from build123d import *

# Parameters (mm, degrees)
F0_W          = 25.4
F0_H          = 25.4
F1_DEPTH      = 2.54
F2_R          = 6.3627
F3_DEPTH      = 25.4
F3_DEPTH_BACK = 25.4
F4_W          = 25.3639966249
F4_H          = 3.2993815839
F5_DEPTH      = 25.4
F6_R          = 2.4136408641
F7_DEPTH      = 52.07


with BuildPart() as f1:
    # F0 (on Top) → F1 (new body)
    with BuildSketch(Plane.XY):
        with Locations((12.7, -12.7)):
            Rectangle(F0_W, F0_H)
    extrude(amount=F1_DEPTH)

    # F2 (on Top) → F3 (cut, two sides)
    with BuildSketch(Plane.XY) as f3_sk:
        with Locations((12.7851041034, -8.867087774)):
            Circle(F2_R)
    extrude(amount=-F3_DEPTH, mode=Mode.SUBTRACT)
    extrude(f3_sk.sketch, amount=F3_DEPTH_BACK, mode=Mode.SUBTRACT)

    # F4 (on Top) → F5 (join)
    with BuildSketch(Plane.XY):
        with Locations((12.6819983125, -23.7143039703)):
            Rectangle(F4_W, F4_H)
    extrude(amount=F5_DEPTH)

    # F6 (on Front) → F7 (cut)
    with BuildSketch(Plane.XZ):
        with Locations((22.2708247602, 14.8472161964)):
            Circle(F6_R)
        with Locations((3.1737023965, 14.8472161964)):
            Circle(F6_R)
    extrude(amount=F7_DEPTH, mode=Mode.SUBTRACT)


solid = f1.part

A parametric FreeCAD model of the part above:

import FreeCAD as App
import Part
import Sketcher
Q = App.Units.Quantity

doc = App.newDocument("Part")
body = doc.addObject("PartDesign::Body", "Body")

# Sketch on XY plane
sketch1 = body.newObject("Sketcher::SketchObject", "Sketch")
sketch1.AttachmentSupport = (doc.getObject("XY_Plane"), [""])
sketch1.MapMode = "FlatFace"
sketch1.addGeometry(Part.LineSegment(App.Vector(0, 0, 0), App.Vector(0, -25.4, 0)), False)
sketch1.addGeometry(Part.LineSegment(App.Vector(0, -25.4, 0), App.Vector(25.4, -25.4, 0)), False)
sketch1.addGeometry(Part.LineSegment(App.Vector(25.4, -25.4, 0), App.Vector(25.4, 0, 0)), False)
sketch1.addGeometry(Part.LineSegment(App.Vector(25.4, 0, 0), App.Vector(0, 0, 0)), False)
sketch1.addConstraint(Sketcher.Constraint("Coincident", 0, 2, 1, 1))
sketch1.addConstraint(Sketcher.Constraint("Coincident", 1, 2, 2, 1))
sketch1.addConstraint(Sketcher.Constraint("Coincident", 2, 2, 3, 1))
sketch1.addConstraint(Sketcher.Constraint("Coincident", 3, 2, 0, 1))
sketch1.addConstraint(Sketcher.Constraint("Vertical", 0))
sketch1.addConstraint(Sketcher.Constraint("Horizontal", 1))
sketch1.addConstraint(Sketcher.Constraint("Vertical", 2))
sketch1.addConstraint(Sketcher.Constraint("Horizontal", 3))
sketch1.addConstraint(Sketcher.Constraint("Coincident", 3, 2, -1, 1))
sketch1.addConstraint(Sketcher.Constraint("Equal", 3, 0))
sketch1.addConstraint(Sketcher.Constraint("DistanceX", 1, 1, 1, 2, Q("1 in")))
pad1 = body.newObject("PartDesign::Pad", "Pad")
pad1.Profile = sketch1
pad1.Length = Q("0.1 in")

# Sketch on XY plane
sketch2 = body.newObject("Sketcher::SketchObject", "Sketch001")
sketch2.AttachmentSupport = (doc.getObject("XY_Plane"), [""])
sketch2.MapMode = "FlatFace"
sketch2.addGeometry(Part.Circle(App.Vector(12.785104, -8.867088, 0), App.Vector(0, 0, 1), 6.3627), False)
sketch2.addConstraint(Sketcher.Constraint("Diameter", 0, Q("0.501 in")))
sketch2.addConstraint(Sketcher.Constraint("DistanceX", -1, 1, 0, 3, Q("12.785104 mm")))
sketch2.addConstraint(Sketcher.Constraint("DistanceY", 0, 3, -1, 1, Q("8.867088 mm")))
pocket1 = body.newObject("PartDesign::Pocket", "Pocket")
pocket1.Profile = sketch2
pocket1.Type = "ThroughAll"
pocket1.Midplane = True

# Sketch on XY plane
sketch3 = body.newObject("Sketcher::SketchObject", "Sketch002")
sketch3.AttachmentSupport = (doc.getObject("XY_Plane"), [""])
sketch3.MapMode = "FlatFace"
sketch3.addGeometry(Part.LineSegment(App.Vector(0, -22.064613, 0), App.Vector(0, -25.363995, 0)), False)
sketch3.addGeometry(Part.LineSegment(App.Vector(0, -25.363995, 0), App.Vector(25.363997, -25.363995, 0)), False)
sketch3.addGeometry(Part.LineSegment(App.Vector(25.363997, -25.363995, 0), App.Vector(25.363997, -22.064613, 0)), False)
sketch3.addGeometry(Part.LineSegment(App.Vector(25.363997, -22.064613, 0), App.Vector(0, -22.064613, 0)), False)
sketch3.addConstraint(Sketcher.Constraint("Coincident", 0, 2, 1, 1))
sketch3.addConstraint(Sketcher.Constraint("Coincident", 1, 2, 2, 1))
sketch3.addConstraint(Sketcher.Constraint("Coincident", 2, 2, 3, 1))
sketch3.addConstraint(Sketcher.Constraint("Coincident", 3, 2, 0, 1))
sketch3.addConstraint(Sketcher.Constraint("Vertical", 0))
sketch3.addConstraint(Sketcher.Constraint("Horizontal", 1))
sketch3.addConstraint(Sketcher.Constraint("Vertical", 2))
sketch3.addConstraint(Sketcher.Constraint("Horizontal", 3))
sketch3.addConstraint(Sketcher.Constraint("PointOnObject", 0, 2, -2))
sketch3.addConstraint(Sketcher.Constraint("DistanceY", 0, 2, 0, 1, Q("3.299382 mm")))
sketch3.addConstraint(Sketcher.Constraint("DistanceX", 1, 1, 1, 2, Q("25.363997 mm")))
sketch3.addConstraint(Sketcher.Constraint("DistanceY", 0, 2, -1, 1, Q("25.363995 mm")))
pad2 = body.newObject("PartDesign::Pad", "Pad001")
pad2.Profile = sketch3
pad2.Length = Q("1 in")

# Sketch on XZ plane
sketch4 = body.newObject("Sketcher::SketchObject", "Sketch003")
sketch4.AttachmentSupport = (doc.getObject("XZ_Plane"), [""])
sketch4.MapMode = "FlatFace"
sketch4.addGeometry(Part.Circle(App.Vector(22.270825, 14.847216, 0), App.Vector(0, 0, 1), 2.413641), False)
sketch4.addGeometry(Part.Circle(App.Vector(3.173702, 14.847216, 0), App.Vector(0, 0, 1), 2.413641), False)
sketch4.addConstraint(Sketcher.Constraint("Equal", 0, 1))
sketch4.addConstraint(Sketcher.Constraint("Horizontal", 0, 3, 1, 3))
sketch4.addConstraint(Sketcher.Constraint("Diameter", 0, Q("4.827282 mm")))
sketch4.addConstraint(Sketcher.Constraint("DistanceX", -1, 1, 0, 3, Q("22.270825 mm")))
sketch4.addConstraint(Sketcher.Constraint("DistanceY", -1, 1, 0, 3, Q("14.847216 mm")))
sketch4.addConstraint(Sketcher.Constraint("DistanceX", -1, 1, 1, 3, Q("3.173702 mm")))
pocket2 = body.newObject("PartDesign::Pocket", "Pocket001")
pocket2.Profile = sketch4
pocket2.Length = Q("2.05 in")
pocket2.Reversed = True

doc.recompute()
